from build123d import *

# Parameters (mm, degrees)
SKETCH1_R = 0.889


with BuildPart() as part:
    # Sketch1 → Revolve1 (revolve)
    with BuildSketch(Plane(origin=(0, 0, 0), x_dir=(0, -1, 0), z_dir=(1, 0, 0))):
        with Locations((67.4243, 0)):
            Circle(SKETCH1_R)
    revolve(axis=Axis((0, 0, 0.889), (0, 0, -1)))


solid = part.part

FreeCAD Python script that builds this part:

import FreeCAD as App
import Part
import Sketcher
from FreeCAD import Vector
Q = App.Units.Quantity

doc = App.newDocument("Part")
body = doc.addObject("PartDesign::Body", "Body")

sketch1 = body.newObject("Sketcher::SketchObject", "Sketch")
sketch1.AttachmentSupport = (doc.getObject("YZ_Plane"), [""])
sketch1.MapMode = "FlatFace"
sketch1.addGeometry(Part.Circle(Vector(-67.4, 0, 0), Vector(0, 0, 1), 0.9), False)
sketch1.addConstraint([
    Sketcher.Constraint("PointOnObject", 0, 3, -1),
    Sketcher.Constraint("Diameter", 0, Q("0.07 in")),
    Sketcher.Constraint("DistanceX", 0, 3, -1, 1, Q("2.6545 in")),
])
revolution = body.newObject("PartDesign::Revolution", "Revolution")
revolution.Profile = sketch1
revolution.ReferenceAxis = (sketch1, ["V_Axis"])
revolution.Angle = 360

doc.recompute()
